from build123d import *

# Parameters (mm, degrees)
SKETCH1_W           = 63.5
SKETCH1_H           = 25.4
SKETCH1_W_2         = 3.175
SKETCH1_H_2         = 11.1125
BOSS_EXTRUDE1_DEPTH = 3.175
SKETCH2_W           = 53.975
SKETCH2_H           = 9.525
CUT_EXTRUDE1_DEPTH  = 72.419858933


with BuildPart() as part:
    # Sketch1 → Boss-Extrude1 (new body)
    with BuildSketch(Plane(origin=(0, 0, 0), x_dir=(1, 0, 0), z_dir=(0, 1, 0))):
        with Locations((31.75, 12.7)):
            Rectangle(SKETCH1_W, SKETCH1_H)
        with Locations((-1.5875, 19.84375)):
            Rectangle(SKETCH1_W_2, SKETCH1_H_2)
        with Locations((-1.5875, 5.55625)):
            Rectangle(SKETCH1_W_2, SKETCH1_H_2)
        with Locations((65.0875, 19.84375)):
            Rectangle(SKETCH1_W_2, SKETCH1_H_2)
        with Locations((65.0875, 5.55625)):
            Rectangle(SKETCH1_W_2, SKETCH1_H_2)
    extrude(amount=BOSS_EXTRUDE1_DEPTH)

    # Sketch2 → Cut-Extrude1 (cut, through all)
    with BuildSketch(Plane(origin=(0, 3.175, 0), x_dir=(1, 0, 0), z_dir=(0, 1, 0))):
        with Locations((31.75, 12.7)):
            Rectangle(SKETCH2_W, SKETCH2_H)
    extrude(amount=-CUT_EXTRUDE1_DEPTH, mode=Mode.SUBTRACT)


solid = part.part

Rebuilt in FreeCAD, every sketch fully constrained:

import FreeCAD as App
import Part
import Sketcher

V = App.Vector
Q = App.Units.Quantity

doc = App.newDocument("Part")
params = doc.addObject("Spreadsheet::Sheet", "Params")
for row, (alias, value) in enumerate([
    ("sketch1_width", "2.75 in"),
    ("pad1_length", "0.125 in"),
    ("sketch2_width", "2.125 in"),
    ("sketch2_height", "0.375 in"),
], start=1):
    params.set(f"A{row}", alias)
    params.set(f"B{row}", "=" + value)
    params.setAlias(f"B{row}", alias)

body = doc.addObject("PartDesign::Body", "Body")

sketch1 = body.newObject("Sketcher::SketchObject", "Sketch")
sketch1.AttachmentSupport = (doc.getObject("XZ_Plane"), [""])
sketch1.MapMode = "FlatFace"
sketch1.addGeometry([
    Part.LineSegment(V(0, -14.3, 0), V(0, -11.1, 0)),
    Part.LineSegment(V(0, -11.1, 0), V(-3.2, -11.1, 0)),
    Part.LineSegment(V(-3.2, -11.1, 0), V(-3.2, 0, 0)),
    Part.LineSegment(V(-3.2, 0, 0), V(66.7, 0, 0)),
    Part.LineSegment(V(66.7, 0, 0), V(66.7, -11.1, 0)),
    Part.LineSegment(V(66.7, -11.1, 0), V(63.5, -11.1, 0)),
    Part.LineSegment(V(63.5, -11.1, 0), V(63.5, -14.3, 0)),
    Part.LineSegment(V(63.5, -14.3, 0), V(66.7, -14.3, 0)),
    Part.LineSegment(V(66.7, -14.3, 0), V(66.7, -25.4, 0)),
    Part.LineSegment(V(66.7, -25.4, 0), V(-3.2, -25.4, 0)),
    Part.LineSegment(V(-3.2, -25.4, 0), V(-3.2, -14.3, 0)),
    Part.LineSegment(V(-3.2, -14.3, 0), V(0, -14.3, 0)),
], False)
sketch1.addConstraint([
    Sketcher.Constraint("Coincident", 0, 2, 1, 1),
    Sketcher.Constraint("Coincident", 1, 2, 2, 1),
    Sketcher.Constraint("Coincident", 2, 2, 3, 1),
    Sketcher.Constraint("Coincident", 3, 2, 4, 1),
    Sketcher.Constraint("Coincident", 4, 2, 5, 1),
    Sketcher.Constraint("Coincident", 5, 2, 6, 1),
    Sketcher.Constraint("Coincident", 6, 2, 7, 1),
    Sketcher.Constraint("Coincident", 7, 2, 8, 1),
    Sketcher.Constraint("Coincident", 8, 2, 9, 1),
    Sketcher.Constraint("Coincident", 9, 2, 10, 1),
    Sketcher.Constraint("Coincident", 10, 2, 11, 1),
    Sketcher.Constraint("Coincident", 11, 2, 0, 1),
    Sketcher.Constraint("Vertical", 0),
    Sketcher.Constraint("Horizontal", 1),
    Sketcher.Constraint("Vertical", 2),
    Sketcher.Constraint("Horizontal", 3),
    Sketcher.Constraint("Vertical", 4),
    Sketcher.Constraint("Horizontal", 5),
    Sketcher.Constraint("Vertical", 6),
    Sketcher.Constraint("Horizontal", 7),
    Sketcher.Constraint("Vertical", 8),
    Sketcher.Constraint("Horizontal", 9),
    Sketcher.Constraint("Vertical", 10),
    Sketcher.Constraint("Horizontal", 11),
    Sketcher.Constraint("PointOnObject", 0, 2, -2),
    Sketcher.Constraint("PointOnObject", 2, 2, -1),
    Sketcher.Constraint("Horizontal", 1, 2, 4, 2),
    Sketcher.Constraint("Horizontal", 7, 2, 10, 2),
    Sketcher.Constraint("Vertical", 4, 2, 7, 2),
    Sketcher.Constraint("Vertical", 2, 2, 9, 2),
    Sketcher.Constraint("Equal", 1, 5),
    Sketcher.Constraint("Equal", 11, 0),
    Sketcher.Constraint("Equal", 4, 8),
    Sketcher.Constraint("DistanceY", 8, 2, -1, 1, Q("1 in")),
    Sketcher.Constraint("DistanceX", 3, 1, 3, 2, Q("2.75 in")),
    Sketcher.Constraint("DistanceX", -1, 1, 5, 2, Q("2.5 in")),
])
sketch1.setExpression("Constraints[34]", "Params.sketch1_width")
pad1 = body.newObject("PartDesign::Pad", "Pad")
pad1.Profile = sketch1
pad1.setExpression("Length", "Params.pad1_length")
pad1.Reversed = True

sketch2 = body.newObject("Sketcher::SketchObject", "Sketch001")
sketch2.AttachmentSupport = (doc.getObject("XZ_Plane"), [""])
sketch2.MapMode = "FlatFace"
sketch2.AttachmentOffset = App.Placement(V(0, 0, -0.125 * 25.4), App.Rotation())
sketch2.addGeometry([
    Part.LineSegment(V(5, -17, 0), V(5, -8, 0)),
    Part.LineSegment(V(5, -8, 0), V(59, -8, 0)),
    Part.LineSegment(V(59, -8, 0), V(59, -17, 0)),
    Part.LineSegment(V(59, -17, 0), V(5, -17, 0)),
], False)
sketch2.addConstraint([
    Sketcher.Constraint("Coincident", 0, 2, 1, 1),
    Sketcher.Constraint("Coincident", 1, 2, 2, 1),
    Sketcher.Constraint("Coincident", 2, 2, 3, 1),
    Sketcher.Constraint("Coincident", 3, 2, 0, 1),
    Sketcher.Constraint("Vertical", 0),
    Sketcher.Constraint("Horizontal", 1),
    Sketcher.Constraint("Vertical", 2),
    Sketcher.Constraint("Horizontal", 3),
    Sketcher.Constraint("DistanceX", 1, 1, 1, 2, Q("2.125 in")),
    Sketcher.Constraint("DistanceY", 0, 1, 0, 2, Q("0.375 in")),
    Sketcher.Constraint("DistanceX", -1, 1, 0, 2, Q("0.1875 in")),
    Sketcher.Constraint("DistanceY", 0, 2, -1, 1, Q("0.3125 in")),
])
sketch2.setExpression("Constraints[8]", "Params.sketch2_width")
sketch2.setExpression("Constraints[9]", "Params.sketch2_height")
pocket1 = body.newObject("PartDesign::Pocket", "Pocket")
pocket1.Profile = sketch2
pocket1.Type = "ThroughAll"
pocket1.Reversed = True

doc.recompute()
